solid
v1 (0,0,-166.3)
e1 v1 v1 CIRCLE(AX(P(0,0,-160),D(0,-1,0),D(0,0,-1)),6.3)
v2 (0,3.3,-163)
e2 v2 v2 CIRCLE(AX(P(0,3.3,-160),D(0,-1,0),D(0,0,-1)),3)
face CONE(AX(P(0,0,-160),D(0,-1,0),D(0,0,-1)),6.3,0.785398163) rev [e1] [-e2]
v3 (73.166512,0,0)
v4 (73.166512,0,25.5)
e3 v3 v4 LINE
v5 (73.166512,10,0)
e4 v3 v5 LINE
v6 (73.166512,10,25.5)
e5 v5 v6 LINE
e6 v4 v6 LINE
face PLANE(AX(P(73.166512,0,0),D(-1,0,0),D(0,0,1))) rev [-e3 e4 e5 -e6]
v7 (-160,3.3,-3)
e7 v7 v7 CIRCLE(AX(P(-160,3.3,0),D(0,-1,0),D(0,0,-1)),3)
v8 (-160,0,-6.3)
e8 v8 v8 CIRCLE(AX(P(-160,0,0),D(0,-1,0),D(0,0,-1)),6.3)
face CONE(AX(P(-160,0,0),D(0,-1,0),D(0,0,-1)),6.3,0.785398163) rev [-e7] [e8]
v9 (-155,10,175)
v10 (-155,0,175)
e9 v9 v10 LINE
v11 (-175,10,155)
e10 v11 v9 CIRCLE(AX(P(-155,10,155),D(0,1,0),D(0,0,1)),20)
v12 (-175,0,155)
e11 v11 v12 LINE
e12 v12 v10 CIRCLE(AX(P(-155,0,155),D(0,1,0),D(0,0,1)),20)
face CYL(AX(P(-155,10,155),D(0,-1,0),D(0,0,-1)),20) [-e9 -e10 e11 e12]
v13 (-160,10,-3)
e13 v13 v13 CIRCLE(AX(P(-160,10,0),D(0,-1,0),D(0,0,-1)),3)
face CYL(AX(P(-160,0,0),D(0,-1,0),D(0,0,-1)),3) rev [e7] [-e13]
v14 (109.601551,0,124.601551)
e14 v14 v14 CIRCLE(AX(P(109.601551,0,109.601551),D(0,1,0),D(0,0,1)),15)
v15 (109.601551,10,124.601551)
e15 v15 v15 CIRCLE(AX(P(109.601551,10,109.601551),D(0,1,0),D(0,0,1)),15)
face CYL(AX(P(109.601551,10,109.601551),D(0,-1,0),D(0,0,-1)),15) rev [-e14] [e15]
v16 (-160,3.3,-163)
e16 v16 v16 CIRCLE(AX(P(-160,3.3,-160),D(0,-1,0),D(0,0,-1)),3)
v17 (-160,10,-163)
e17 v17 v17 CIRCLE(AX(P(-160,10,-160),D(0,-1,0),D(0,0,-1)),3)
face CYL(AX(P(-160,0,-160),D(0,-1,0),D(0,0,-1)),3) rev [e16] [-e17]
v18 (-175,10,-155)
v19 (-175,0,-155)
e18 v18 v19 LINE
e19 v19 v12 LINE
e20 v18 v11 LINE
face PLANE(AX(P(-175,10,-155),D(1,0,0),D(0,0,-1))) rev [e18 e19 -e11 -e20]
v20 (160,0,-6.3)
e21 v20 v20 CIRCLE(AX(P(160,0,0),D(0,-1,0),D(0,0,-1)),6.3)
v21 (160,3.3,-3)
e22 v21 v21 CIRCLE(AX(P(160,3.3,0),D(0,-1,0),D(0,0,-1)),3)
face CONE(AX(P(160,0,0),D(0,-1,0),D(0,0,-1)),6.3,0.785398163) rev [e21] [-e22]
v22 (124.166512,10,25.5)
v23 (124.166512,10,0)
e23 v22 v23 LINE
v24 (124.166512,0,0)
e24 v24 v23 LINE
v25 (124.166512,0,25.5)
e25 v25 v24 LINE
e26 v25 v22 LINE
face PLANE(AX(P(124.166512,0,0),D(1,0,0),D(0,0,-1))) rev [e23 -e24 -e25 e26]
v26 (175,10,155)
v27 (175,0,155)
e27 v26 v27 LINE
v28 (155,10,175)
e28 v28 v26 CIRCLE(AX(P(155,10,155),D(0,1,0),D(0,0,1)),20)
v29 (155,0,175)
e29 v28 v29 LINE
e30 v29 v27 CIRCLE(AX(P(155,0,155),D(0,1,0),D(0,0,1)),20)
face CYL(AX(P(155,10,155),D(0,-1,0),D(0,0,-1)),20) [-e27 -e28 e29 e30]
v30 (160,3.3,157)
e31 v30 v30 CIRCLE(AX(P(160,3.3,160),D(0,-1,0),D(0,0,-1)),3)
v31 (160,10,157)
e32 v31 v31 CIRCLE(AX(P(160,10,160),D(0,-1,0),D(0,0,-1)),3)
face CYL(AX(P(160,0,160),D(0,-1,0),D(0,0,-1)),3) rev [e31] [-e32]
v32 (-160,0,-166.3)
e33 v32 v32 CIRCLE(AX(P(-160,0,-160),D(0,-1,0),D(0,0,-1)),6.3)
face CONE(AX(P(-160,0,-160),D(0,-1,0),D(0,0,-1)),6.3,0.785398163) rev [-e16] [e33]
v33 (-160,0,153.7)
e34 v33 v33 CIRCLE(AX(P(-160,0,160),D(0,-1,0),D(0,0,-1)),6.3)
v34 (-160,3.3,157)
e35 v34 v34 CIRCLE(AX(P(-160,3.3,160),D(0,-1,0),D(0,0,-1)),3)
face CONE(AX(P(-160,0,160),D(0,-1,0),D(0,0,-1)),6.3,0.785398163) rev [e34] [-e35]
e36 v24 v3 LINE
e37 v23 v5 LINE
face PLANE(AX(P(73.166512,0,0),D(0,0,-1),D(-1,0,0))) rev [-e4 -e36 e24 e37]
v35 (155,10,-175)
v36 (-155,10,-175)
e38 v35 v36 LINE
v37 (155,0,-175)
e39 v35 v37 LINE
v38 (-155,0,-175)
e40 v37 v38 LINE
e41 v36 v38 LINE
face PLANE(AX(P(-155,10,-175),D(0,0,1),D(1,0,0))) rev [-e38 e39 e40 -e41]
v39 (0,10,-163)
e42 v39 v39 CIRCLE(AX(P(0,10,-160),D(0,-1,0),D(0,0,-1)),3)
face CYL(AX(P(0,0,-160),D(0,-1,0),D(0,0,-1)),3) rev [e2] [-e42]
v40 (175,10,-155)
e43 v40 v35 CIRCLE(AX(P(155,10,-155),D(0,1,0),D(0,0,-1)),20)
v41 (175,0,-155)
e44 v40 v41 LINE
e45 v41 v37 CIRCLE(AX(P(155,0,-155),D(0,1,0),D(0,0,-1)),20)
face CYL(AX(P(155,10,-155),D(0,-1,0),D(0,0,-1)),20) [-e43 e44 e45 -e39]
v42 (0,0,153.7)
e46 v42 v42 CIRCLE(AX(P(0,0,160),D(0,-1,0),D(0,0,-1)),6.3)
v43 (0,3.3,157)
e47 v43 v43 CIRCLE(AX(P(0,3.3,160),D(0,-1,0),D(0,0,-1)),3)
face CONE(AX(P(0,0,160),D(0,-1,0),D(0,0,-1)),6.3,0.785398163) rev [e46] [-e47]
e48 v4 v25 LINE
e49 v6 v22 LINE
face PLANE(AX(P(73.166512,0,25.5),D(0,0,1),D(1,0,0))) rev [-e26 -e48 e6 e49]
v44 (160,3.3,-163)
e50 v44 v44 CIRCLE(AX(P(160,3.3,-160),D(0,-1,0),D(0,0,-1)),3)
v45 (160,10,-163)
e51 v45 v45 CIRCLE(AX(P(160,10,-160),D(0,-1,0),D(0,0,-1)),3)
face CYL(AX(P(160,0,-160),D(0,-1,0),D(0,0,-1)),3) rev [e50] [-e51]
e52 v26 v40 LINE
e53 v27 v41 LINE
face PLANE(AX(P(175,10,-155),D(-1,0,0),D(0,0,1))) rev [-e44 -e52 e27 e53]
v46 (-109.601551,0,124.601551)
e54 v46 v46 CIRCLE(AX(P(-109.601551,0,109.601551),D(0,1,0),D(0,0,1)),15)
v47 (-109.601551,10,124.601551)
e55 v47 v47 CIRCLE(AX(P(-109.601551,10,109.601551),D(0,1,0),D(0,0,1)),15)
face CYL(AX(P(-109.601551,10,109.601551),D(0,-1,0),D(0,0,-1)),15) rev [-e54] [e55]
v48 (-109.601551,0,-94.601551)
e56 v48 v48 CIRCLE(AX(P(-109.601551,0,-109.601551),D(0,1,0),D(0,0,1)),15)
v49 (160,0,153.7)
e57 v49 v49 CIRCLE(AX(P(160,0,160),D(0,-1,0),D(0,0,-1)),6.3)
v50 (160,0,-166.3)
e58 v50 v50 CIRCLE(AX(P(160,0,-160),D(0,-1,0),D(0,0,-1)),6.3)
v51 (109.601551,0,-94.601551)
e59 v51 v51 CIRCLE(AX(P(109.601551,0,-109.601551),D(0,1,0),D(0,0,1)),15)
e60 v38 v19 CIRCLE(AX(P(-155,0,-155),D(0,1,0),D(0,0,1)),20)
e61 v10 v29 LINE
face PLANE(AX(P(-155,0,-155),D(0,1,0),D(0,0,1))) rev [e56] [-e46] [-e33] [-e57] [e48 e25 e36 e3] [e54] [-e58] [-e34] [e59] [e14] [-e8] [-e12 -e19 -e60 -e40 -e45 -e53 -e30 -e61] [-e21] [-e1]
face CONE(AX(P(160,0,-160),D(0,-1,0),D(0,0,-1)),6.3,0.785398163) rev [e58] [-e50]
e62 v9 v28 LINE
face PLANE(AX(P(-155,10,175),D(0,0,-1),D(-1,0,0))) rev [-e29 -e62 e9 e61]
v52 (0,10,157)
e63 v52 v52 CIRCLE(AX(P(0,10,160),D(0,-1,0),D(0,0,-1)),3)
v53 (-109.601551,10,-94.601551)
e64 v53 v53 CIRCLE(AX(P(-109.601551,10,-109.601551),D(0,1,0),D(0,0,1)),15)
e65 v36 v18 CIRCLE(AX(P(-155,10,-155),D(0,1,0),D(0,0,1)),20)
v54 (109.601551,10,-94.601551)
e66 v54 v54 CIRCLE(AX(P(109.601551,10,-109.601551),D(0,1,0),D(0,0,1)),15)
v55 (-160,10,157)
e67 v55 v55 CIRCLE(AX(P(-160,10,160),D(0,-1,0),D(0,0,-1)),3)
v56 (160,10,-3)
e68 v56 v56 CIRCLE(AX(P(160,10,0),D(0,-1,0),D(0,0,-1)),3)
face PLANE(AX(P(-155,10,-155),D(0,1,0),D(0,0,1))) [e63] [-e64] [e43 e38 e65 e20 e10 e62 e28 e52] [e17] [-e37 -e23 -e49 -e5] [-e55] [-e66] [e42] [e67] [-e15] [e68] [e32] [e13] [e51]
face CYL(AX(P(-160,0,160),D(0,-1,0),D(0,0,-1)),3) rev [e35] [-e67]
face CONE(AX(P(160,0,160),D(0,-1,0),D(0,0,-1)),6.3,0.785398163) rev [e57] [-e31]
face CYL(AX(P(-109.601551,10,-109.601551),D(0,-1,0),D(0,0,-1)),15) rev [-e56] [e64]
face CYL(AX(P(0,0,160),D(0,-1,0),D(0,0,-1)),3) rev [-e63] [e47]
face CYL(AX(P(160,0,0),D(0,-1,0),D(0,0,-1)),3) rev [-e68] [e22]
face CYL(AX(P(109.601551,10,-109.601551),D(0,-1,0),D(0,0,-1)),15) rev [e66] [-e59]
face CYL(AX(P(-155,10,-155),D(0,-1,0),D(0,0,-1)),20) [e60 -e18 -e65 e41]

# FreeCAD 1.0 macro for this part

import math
import FreeCAD as App
import Part
import Sketcher
from FreeCAD import Vector

doc = App.newDocument("Part")
params = doc.addObject("Spreadsheet::Sheet", "Params")
for row, (alias, value) in enumerate([
    ("sketch1_diameter", "30 mm"),
    ("sketch1_radius", "20 mm"),
    ("sketch1_width", "310 mm"),
    ("pad1_length", "10 mm"),
    ("sketch2_diameter", "6 mm"),
    ("hole_diameter", "6 mm"),
    ("hole_csink_diameter", "12.6 mm"),
    ("sketch3_width", "51 mm"),
    ("sketch3_height", "25.5 mm"),
    ("pocket1_length", "10 mm"),
], start=1):
    params.set(f"A{row}", alias)
    params.set(f"B{row}", "=" + value)
    params.setAlias(f"B{row}", alias)

body = doc.addObject("PartDesign::Body", "Body")

sketch1 = body.newObject("Sketcher::SketchObject", "Sketch")
sketch1.AttachmentSupport = (doc.getObject("XZ_Plane"), [""])
sketch1.MapMode = "FlatFace"
sketch1.addGeometry(Part.LineSegment(Vector(155, -175, 0), Vector(-155, -175, 0)), False)
sketch1.addGeometry(Part.ArcOfCircle(Part.Circle(Vector(-155, -155, 0), Vector(0, 0, 1), 20), math.radians(180), math.radians(270)), False)
sketch1.addGeometry(Part.LineSegment(Vector(-175, -155, 0), Vector(-175, 155, 0)), False)
sketch1.addGeometry(Part.ArcOfCircle(Part.Circle(Vector(-155, 155, 0), Vector(0, 0, 1), 20), math.radians(90), math.radians(180)), False)
sketch1.addGeometry(Part.LineSegment(Vector(-155, 175, 0), Vector(155, 175, 0)), False)
sketch1.addGeometry(Part.ArcOfCircle(Part.Circle(Vector(155, 155, 0), Vector(0, 0, 1), 20), math.radians(0), math.radians(90)), False)
sketch1.addGeometry(Part.LineSegment(Vector(175, 155, 0), Vector(175, -155, 0)), False)
sketch1.addGeometry(Part.ArcOfCircle(Part.Circle(Vector(155, -155, 0), Vector(0, 0, 1), 20), math.radians(-90), math.radians(0)), False)
sketch1.addGeometry(Part.Circle(Vector(109.601551, 109.601551, 0), Vector(0, 0, 1), 15), False)
sketch1.addGeometry(Part.Circle(Vector(-109.601551, 109.601551, 0), Vector(0, 0, 1), 15), False)
sketch1.addGeometry(Part.Circle(Vector(109.601551, -109.601551, 0), Vector(0, 0, 1), 15), False)
sketch1.addGeometry(Part.Circle(Vector(-109.601551, -109.601551, 0), Vector(0, 0, 1), 15), False)
sketch1.addConstraint(Sketcher.Constraint("Tangent", 0, 2, 1, 2))
sketch1.addConstraint(Sketcher.Constraint("Tangent", 1, 1, 2, 1))
sketch1.addConstraint(Sketcher.Constraint("Tangent", 2, 2, 3, 2))
sketch1.addConstraint(Sketcher.Constraint("Tangent", 3, 1, 4, 1))
sketch1.addConstraint(Sketcher.Constraint("Tangent", 4, 2, 5, 2))
sketch1.addConstraint(Sketcher.Constraint("Tangent", 5, 1, 6, 1))
sketch1.addConstraint(Sketcher.Constraint("Tangent", 6, 2, 7, 2))
sketch1.addConstraint(Sketcher.Constraint("Tangent", 7, 1, 0, 1))
sketch1.addConstraint(Sketcher.Constraint("Horizontal", 0))
sketch1.addConstraint(Sketcher.Constraint("Vertical", 2))
sketch1.addConstraint(Sketcher.Constraint("Horizontal", 4))
sketch1.addConstraint(Sketcher.Constraint("Vertical", 6))
sketch1.addConstraint(Sketcher.Constraint("Equal", 1, 3))
sketch1.addConstraint(Sketcher.Constraint("Equal", 3, 5))
sketch1.addConstraint(Sketcher.Constraint("Equal", 5, 7))
sketch1.addConstraint(Sketcher.Constraint("Equal", 8, 9))
sketch1.addConstraint(Sketcher.Constraint("Equal", 9, 10))
sketch1.addConstraint(Sketcher.Constraint("Equal", 10, 11))
sketch1.addConstraint(Sketcher.Constraint("Symmetric", 1, 3, 5, 3, -1, 1))
sketch1.addConstraint(Sketcher.Constraint("Symmetric", 9, 3, 10, 3, -1, 1))
sketch1.addConstraint(Sketcher.Constraint("Symmetric", 8, 3, 11, 3, -1, 1))
sketch1.addConstraint(Sketcher.Constraint("Symmetric", 8, 3, 9, 3, -2))
sketch1.addConstraint(Sketcher.Constraint("Equal", 4, 2))
sketch1.addConstraint(Sketcher.Constraint("Diameter", 8, 30.0))
sketch1.addConstraint(Sketcher.Constraint("Radius", 1, 20.0))
sketch1.addConstraint(Sketcher.Constraint("DistanceX", 0, 2, 0, 1, 310.0))
sketch1.addConstraint(Sketcher.Constraint("DistanceX", -1, 1, 8, 3, 109.601551))
sketch1.addConstraint(Sketcher.Constraint("DistanceY", -1, 1, 8, 3, 109.601551))
sketch1.setExpression("Constraints[23]", "Params.sketch1_diameter")
sketch1.setExpression("Constraints[24]", "Params.sketch1_radius")
sketch1.setExpression("Constraints[25]", "Params.sketch1_width")
pad1 = body.newObject("PartDesign::Pad", "Pad")
pad1.Profile = sketch1
pad1.setExpression("Length", "Params.pad1_length")
pad1.Reversed = True

sketch2 = body.newObject("Sketcher::SketchObject", "Sketch001")
sketch2.AttachmentSupport = (doc.getObject("XZ_Plane"), [""])
sketch2.MapMode = "FlatFace"
sketch2.addGeometry(Part.Circle(Vector(160, -160, 0), Vector(0, 0, 1), 3), False)
sketch2.addGeometry(Part.Circle(Vector(160, 0, 0), Vector(0, 0, 1), 3), False)
sketch2.addGeometry(Part.Circle(Vector(160, 160, 0), Vector(0, 0, 1), 3), False)
sketch2.addGeometry(Part.Circle(Vector(0, 160, 0), Vector(0, 0, 1), 3), False)
sketch2.addGeometry(Part.Circle(Vector(-160, 160, 0), Vector(0, 0, 1), 3), False)
sketch2.addGeometry(Part.Circle(Vector(-160, 0, 0), Vector(0, 0, 1), 3), False)
sketch2.addGeometry(Part.Circle(Vector(-160, -160, 0), Vector(0, 0, 1), 3), False)
sketch2.addGeometry(Part.Circle(Vector(0, -160, 0), Vector(0, 0, 1), 3), False)
sketch2.addConstraint(Sketcher.Constraint("Equal", 0, 1))
sketch2.addConstraint(Sketcher.Constraint("Equal", 1, 2))
sketch2.addConstraint(Sketcher.Constraint("Equal", 2, 3))
sketch2.addConstraint(Sketcher.Constraint("Equal", 3, 4))
sketch2.addConstraint(Sketcher.Constraint("Equal", 4, 5))
sketch2.addConstraint(Sketcher.Constraint("Equal", 5, 6))
sketch2.addConstraint(Sketcher.Constraint("Equal", 6, 7))
sketch2.addConstraint(Sketcher.Constraint("Symmetric", 0, 3, 4, 3, -1, 1))
sketch2.addConstraint(Sketcher.Constraint("Symmetric", 1, 3, 5, 3, -1, 1))
sketch2.addConstraint(Sketcher.Constraint("Symmetric", 2, 3, 6, 3, -1, 1))
sketch2.addConstraint(Sketcher.Constraint("Symmetric", 3, 3, 7, 3, -1, 1))
sketch2.addConstraint(Sketcher.Constraint("Symmetric", 2, 3, 4, 3, -2))
sketch2.addConstraint(Sketcher.Constraint("PointOnObject", 1, 3, -1))
sketch2.addConstraint(Sketcher.Constraint("PointOnObject", 3, 3, -2))
sketch2.addConstraint(Sketcher.Constraint("Horizontal", 2, 3, 3, 3))
sketch2.addConstraint(Sketcher.Constraint("Vertical", 0, 3, 1, 3))
sketch2.addConstraint(Sketcher.Constraint("Diameter", 0, 6.0))
sketch2.addConstraint(Sketcher.Constraint("DistanceX", -1, 1, 0, 3, 160.0))
sketch2.addConstraint(Sketcher.Constraint("DistanceY", 0, 3, -1, 1, 160.0))
sketch2.setExpression("Constraints[16]", "Params.sketch2_diameter")
doc.recompute()
hole = body.newObject("PartDesign::Hole", "Hole")
hole.Profile = sketch2
hole.ThreadType = "None"
hole.setExpression("Diameter", "Params.hole_diameter")
hole.DepthType = "ThroughAll"
hole.HoleCutType = "Countersink"
hole.setExpression("HoleCutDiameter", "Params.hole_csink_diameter")
hole.HoleCutCountersinkAngle = 90

sketch3 = body.newObject("Sketcher::SketchObject", "Sketch002")
sketch3.AttachmentSupport = (doc.getObject("XZ_Plane"), [""])
sketch3.MapMode = "FlatFace"
sketch3.AttachmentOffset = App.Placement(Vector(0, 0, -10), App.Rotation())
sketch3.addGeometry(Part.LineSegment(Vector(73.166512, 0, 0), Vector(73.166512, 25.5, 0)), False)
sketch3.addGeometry(Part.LineSegment(Vector(73.166512, 25.5, 0), Vector(124.166512, 25.5, 0)), False)
sketch3.addGeometry(Part.LineSegment(Vector(124.166512, 25.5, 0), Vector(124.166512, 0, 0)), False)
sketch3.addGeometry(Part.LineSegment(Vector(124.166512, 0, 0), Vector(73.166512, 0, 0)), False)
sketch3.addConstraint(Sketcher.Constraint("Coincident", 0, 2, 1, 1))
sketch3.addConstraint(Sketcher.Constraint("Coincident", 1, 2, 2, 1))
sketch3.addConstraint(Sketcher.Constraint("Coincident", 2, 2, 3, 1))
sketch3.addConstraint(Sketcher.Constraint("Coincident", 3, 2, 0, 1))
sketch3.addConstraint(Sketcher.Constraint("Vertical", 0))
sketch3.addConstraint(Sketcher.Constraint("Horizontal", 1))
sketch3.addConstraint(Sketcher.Constraint("Vertical", 2))
sketch3.addConstraint(Sketcher.Constraint("Horizontal", 3))
sketch3.addConstraint(Sketcher.Constraint("PointOnObject", 2, 2, -1))
sketch3.addConstraint(Sketcher.Constraint("DistanceX", 1, 1, 1, 2, 51.0))
sketch3.addConstraint(Sketcher.Constraint("DistanceY", 0, 1, 0, 2, 25.5))
sketch3.addConstraint(Sketcher.Constraint("DistanceX", -1, 1, 0, 2, 73.166512))
sketch3.setExpression("Constraints[9]", "Params.sketch3_width")
sketch3.setExpression("Constraints[10]", "Params.sketch3_height")
pocket1 = body.newObject("PartDesign::Pocket", "Pocket")
pocket1.Profile = sketch3
pocket1.setExpression("Length", "Params.pocket1_length")
pocket1.Reversed = True

doc.recompute()
